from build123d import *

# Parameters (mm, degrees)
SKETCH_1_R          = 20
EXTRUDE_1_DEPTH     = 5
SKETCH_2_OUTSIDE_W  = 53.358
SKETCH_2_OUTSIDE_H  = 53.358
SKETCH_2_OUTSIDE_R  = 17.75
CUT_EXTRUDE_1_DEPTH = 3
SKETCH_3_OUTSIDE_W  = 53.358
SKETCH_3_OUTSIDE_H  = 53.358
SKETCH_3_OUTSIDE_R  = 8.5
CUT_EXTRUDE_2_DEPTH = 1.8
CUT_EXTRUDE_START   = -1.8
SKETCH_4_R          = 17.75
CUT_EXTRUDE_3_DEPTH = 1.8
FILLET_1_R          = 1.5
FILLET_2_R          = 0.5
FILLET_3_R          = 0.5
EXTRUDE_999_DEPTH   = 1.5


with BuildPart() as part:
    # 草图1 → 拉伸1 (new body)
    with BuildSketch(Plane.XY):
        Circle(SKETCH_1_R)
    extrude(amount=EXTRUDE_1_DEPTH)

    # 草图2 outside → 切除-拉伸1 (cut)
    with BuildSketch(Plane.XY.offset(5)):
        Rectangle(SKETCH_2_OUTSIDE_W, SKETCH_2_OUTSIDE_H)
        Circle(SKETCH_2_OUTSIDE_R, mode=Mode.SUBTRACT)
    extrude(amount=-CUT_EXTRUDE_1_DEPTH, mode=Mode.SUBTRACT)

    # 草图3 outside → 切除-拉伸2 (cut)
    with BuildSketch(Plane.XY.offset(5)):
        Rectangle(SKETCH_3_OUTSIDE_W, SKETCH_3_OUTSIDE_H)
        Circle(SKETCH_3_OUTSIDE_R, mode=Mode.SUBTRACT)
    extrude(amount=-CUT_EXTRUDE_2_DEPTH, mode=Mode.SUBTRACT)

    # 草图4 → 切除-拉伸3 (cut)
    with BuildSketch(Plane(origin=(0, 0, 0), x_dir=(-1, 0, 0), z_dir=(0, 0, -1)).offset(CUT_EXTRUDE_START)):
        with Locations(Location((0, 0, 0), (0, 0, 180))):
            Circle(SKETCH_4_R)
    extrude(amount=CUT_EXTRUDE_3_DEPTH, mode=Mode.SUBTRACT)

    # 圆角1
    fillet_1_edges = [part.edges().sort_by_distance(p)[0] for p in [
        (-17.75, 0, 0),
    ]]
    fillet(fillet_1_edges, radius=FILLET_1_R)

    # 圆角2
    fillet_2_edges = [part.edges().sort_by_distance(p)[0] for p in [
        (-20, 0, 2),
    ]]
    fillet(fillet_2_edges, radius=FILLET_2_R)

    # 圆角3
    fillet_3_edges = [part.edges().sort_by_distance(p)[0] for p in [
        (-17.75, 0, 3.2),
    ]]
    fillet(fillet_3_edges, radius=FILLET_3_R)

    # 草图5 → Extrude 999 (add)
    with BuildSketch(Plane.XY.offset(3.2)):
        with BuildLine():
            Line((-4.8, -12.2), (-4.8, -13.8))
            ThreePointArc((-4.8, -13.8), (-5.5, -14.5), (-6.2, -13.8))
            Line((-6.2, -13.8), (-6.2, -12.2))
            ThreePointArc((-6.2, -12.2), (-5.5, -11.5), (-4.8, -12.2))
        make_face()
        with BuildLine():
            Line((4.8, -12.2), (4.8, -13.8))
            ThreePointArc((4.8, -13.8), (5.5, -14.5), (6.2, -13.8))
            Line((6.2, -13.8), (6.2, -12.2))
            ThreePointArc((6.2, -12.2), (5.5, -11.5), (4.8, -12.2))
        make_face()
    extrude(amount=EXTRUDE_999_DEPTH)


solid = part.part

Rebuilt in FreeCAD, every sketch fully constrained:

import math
import FreeCAD as App
import Part
import Sketcher
Q = App.Units.Quantity


def edges_at(feature, points):
    """Names of the edges that pass closest to the given points."""
    edges = feature.Shape.Edges
    near = lambda p: min(range(len(edges)), key=lambda i: edges[i].distToShape(Part.Vertex(*p))[0])
    return sorted({f"Edge{near(p) + 1}" for p in points})


def add_polygon(sketch, points):
    """Adds a closed chain of lines whose ends are joined by coincident constraints."""
    first, n = sketch.GeometryCount, len(points)
    for a, b in zip(points, points[1:] + points[:1]):
        sketch.addGeometry(Part.LineSegment(App.Vector(*a, 0), App.Vector(*b, 0)), False)
    for i in range(n):
        sketch.addConstraint(Sketcher.Constraint("Coincident", first + i, 2, first + (i + 1) % n, 1))

doc = App.newDocument("Part")
body = doc.addObject("PartDesign::Body", "Body")

# Sketch on XY plane
sketch1 = body.newObject("Sketcher::SketchObject", "Sketch")
sketch1.AttachmentSupport = (doc.getObject("XY_Plane"), [""])
sketch1.MapMode = "FlatFace"
sketch1.addGeometry(Part.Circle(App.Vector(0, 0, 0), App.Vector(0, 0, 1), 20), False)
sketch1.addConstraint([
    Sketcher.Constraint("Coincident", 0, 3, -1, 1),
    Sketcher.Constraint("Diameter", 0, Q("40 mm")),
])
pad1 = body.newObject("PartDesign::Pad", "Pad")
pad1.Profile = sketch1
pad1.Length = 5

# Sketch on XY plane
sketch2 = body.newObject("Sketcher::SketchObject", "Sketch001")
sketch2.AttachmentSupport = (doc.getObject("XY_Plane"), [""])
sketch2.MapMode = "FlatFace"
sketch2.AttachmentOffset = App.Placement(App.Vector(0, 0, 5), App.Rotation())
add_polygon(sketch2, [(-27, 27), (-27, -27), (27, -27), (27, 27)])  # lines 0-3
sketch2.addGeometry(Part.Circle(App.Vector(0, 0, 0), App.Vector(0, 0, 1), 18), False)  # 4
sketch2.addConstraint([
    Sketcher.Constraint("Vertical", 0),
    Sketcher.Constraint("Horizontal", 1),
    Sketcher.Constraint("Vertical", 2),
    Sketcher.Constraint("Horizontal", 3),
    Sketcher.Constraint("Coincident", 4, 3, -1, 1),
    Sketcher.Constraint("Symmetric", 0, 2, 2, 2, -1, 1),
    Sketcher.Constraint("Equal", 3, 0),
    Sketcher.Constraint("Diameter", 4, Q("35.5 mm")),
    Sketcher.Constraint("DistanceX", 1, 1, 1, 2, Q("53.358 mm")),
])
pocket1 = body.newObject("PartDesign::Pocket", "Pocket")
pocket1.Profile = sketch2
pocket1.Length = 3

# Sketch on XY plane
sketch3 = body.newObject("Sketcher::SketchObject", "Sketch002")
sketch3.AttachmentSupport = (doc.getObject("XY_Plane"), [""])
sketch3.MapMode = "FlatFace"
sketch3.AttachmentOffset = App.Placement(App.Vector(0, 0, 5), App.Rotation())
add_polygon(sketch3, [(-27, 27), (-27, -27), (27, -27), (27, 27)])  # lines 0-3
sketch3.addGeometry(Part.Circle(App.Vector(0, 0, 0), App.Vector(0, 0, 1), 8), False)  # 4
sketch3.addConstraint([
    Sketcher.Constraint("Vertical", 0),
    Sketcher.Constraint("Horizontal", 1),
    Sketcher.Constraint("Vertical", 2),
    Sketcher.Constraint("Horizontal", 3),
    Sketcher.Constraint("Coincident", 4, 3, -1, 1),
    Sketcher.Constraint("Symmetric", 0, 2, 2, 2, -1, 1),
    Sketcher.Constraint("Equal", 3, 0),
    Sketcher.Constraint("Diameter", 4, Q("17 mm")),
    Sketcher.Constraint("DistanceX", 1, 1, 1, 2, Q("53.358 mm")),
])
pocket2 = body.newObject("PartDesign::Pocket", "Pocket001")
pocket2.Profile = sketch3
pocket2.Length = 1.8

# Sketch on XY plane
sketch4 = body.newObject("Sketcher::SketchObject", "Sketch003")
sketch4.AttachmentSupport = (doc.getObject("XY_Plane"), [""])
sketch4.MapMode = "FlatFace"
sketch4.AttachmentOffset = App.Placement(App.Vector(0, 0, 1.8), App.Rotation())
sketch4.addGeometry(Part.Circle(App.Vector(0, 0, 0), App.Vector(0, 0, 1), 18), False)
sketch4.addConstraint([
    Sketcher.Constraint("Coincident", 0, 3, -1, 1),
    Sketcher.Constraint("Diameter", 0, Q("35.5 mm")),
])
pocket3 = body.newObject("PartDesign::Pocket", "Pocket002")
pocket3.Profile = sketch4
pocket3.Length = 1.8
doc.recompute()

fillet = body.newObject("PartDesign::Fillet", "Fillet")
fillet.Base = (pocket3, edges_at(pocket3, [(-17.75, 0, 0)]))
fillet.Radius = 1.5
doc.recompute()

fillet2 = body.newObject("PartDesign::Fillet", "Fillet001")
fillet2.Base = (fillet, edges_at(fillet, [(-20, 0, 2)]))
fillet2.Radius = 0.5
doc.recompute()

fillet3 = body.newObject("PartDesign::Fillet", "Fillet002")
fillet3.Base = (fillet2, edges_at(fillet2, [(-17.75, 0, 3.2)]))
fillet3.Radius = 0.5

# Sketch on XY plane
sketch5 = body.newObject("Sketcher::SketchObject", "Sketch004")
sketch5.AttachmentSupport = (doc.getObject("XY_Plane"), [""])
sketch5.MapMode = "FlatFace"
sketch5.AttachmentOffset = App.Placement(App.Vector(0, 0, 3.2), App.Rotation())
sketch5.addGeometry([
    Part.LineSegment(App.Vector(-4.8, -13.8, 0), App.Vector(-4.8, -12.2, 0)),  # 0
    Part.ArcOfCircle(Part.Circle(App.Vector(-5.5, -12.2, 0), App.Vector(0, 0, 1), 0.7), math.radians(0), math.radians(180)),  # 1
    Part.LineSegment(App.Vector(-6.2, -12.2, 0), App.Vector(-6.2, -13.8, 0)),  # 2
    Part.ArcOfCircle(Part.Circle(App.Vector(-5.5, -13.8, 0), App.Vector(0, 0, 1), 0.7), math.radians(180), math.radians(360)),  # 3
    Part.LineSegment(App.Vector(4.8, -12.2, 0), App.Vector(4.8, -13.8, 0)),  # 4
    Part.ArcOfCircle(Part.Circle(App.Vector(5.5, -13.8, 0), App.Vector(0, 0, 1), 0.7), math.radians(180), math.radians(360)),  # 5
    Part.LineSegment(App.Vector(6.2, -13.8, 0), App.Vector(6.2, -12.2, 0)),  # 6
    Part.ArcOfCircle(Part.Circle(App.Vector(5.5, -12.2, 0), App.Vector(0, 0, 1), 0.7), math.radians(0), math.radians(180)),  # 7
], False)
sketch5.addConstraint([
    Sketcher.Constraint("Tangent", 0, 2, 1, 1),
    Sketcher.Constraint("Tangent", 1, 2, 2, 1),
    Sketcher.Constraint("Tangent", 2, 2, 3, 1),
    Sketcher.Constraint("Tangent", 3, 2, 0, 1),
    Sketcher.Constraint("Tangent", 4, 2, 5, 1),
    Sketcher.Constraint("Tangent", 5, 2, 6, 1),
    Sketcher.Constraint("Tangent", 6, 2, 7, 1),
    Sketcher.Constraint("Tangent", 7, 2, 4, 1),
    Sketcher.Constraint("Vertical", 0),
    Sketcher.Constraint("Vertical", 2),
    Sketcher.Constraint("Vertical", 4),
    Sketcher.Constraint("Vertical", 6),
    Sketcher.Constraint("Equal", 3, 5),
    Sketcher.Constraint("Symmetric", 3, 3, 5, 3, -2),
    Sketcher.Constraint("Horizontal", 1, 3, 7, 3),
    Sketcher.Constraint("Radius", 1, Q("0.7 mm")),
    Sketcher.Constraint("DistanceY", 0, 1, 0, 2, Q("1.6 mm")),
    Sketcher.Constraint("DistanceX", 3, 3, 5, 3, Q("11 mm")),
    Sketcher.Constraint("DistanceY", 1, 3, -1, 1, Q("12.2 mm")),
])
pad2 = body.newObject("PartDesign::Pad", "Pad001")
pad2.Profile = sketch5
pad2.Length = 1.5

doc.recompute()
